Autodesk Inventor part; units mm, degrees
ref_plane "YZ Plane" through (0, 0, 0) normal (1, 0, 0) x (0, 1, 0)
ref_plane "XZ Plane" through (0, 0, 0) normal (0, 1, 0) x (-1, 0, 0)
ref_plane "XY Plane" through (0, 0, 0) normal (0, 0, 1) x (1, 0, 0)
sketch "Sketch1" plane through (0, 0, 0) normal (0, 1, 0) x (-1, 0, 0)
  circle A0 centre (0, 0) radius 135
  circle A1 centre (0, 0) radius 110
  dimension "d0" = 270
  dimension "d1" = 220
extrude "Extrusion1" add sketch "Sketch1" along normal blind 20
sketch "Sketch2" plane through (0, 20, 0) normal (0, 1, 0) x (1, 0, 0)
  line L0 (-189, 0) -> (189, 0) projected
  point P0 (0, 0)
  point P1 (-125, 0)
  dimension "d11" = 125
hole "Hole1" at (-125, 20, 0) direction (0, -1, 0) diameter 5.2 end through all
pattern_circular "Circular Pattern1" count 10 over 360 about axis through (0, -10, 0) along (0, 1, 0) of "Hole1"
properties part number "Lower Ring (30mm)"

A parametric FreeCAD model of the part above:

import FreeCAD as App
import Part
import Sketcher

V = App.Vector
Q = App.Units.Quantity

doc = App.newDocument("Part")
params = doc.addObject("Spreadsheet::Sheet", "Params")
for row, (alias, value) in enumerate([
    ("sketch1_diameter", "270 mm"),
    ("sketch1_diameter2", "220 mm"),
    ("pad1_length", "20 mm"),
    ("sketch2_diameter", "5.2 mm"),
    ("hole_diameter", "5.2 mm"),
], start=1):
    params.set(f"A{row}", alias)
    params.set(f"B{row}", "=" + value)
    params.setAlias(f"B{row}", alias)

body = doc.addObject("PartDesign::Body", "Body")

# Sketch on XZ plane
sketch1 = doc.addObject("Sketcher::SketchObject", "Sketch")
body.addObject(sketch1)
sketch1.AttachmentSupport = (doc.XZ_Plane, [""])
sketch1.MapMode = "FlatFace"
sketch1.addGeometry([
    Part.Circle(V(0, 0, 0), V(0, 0, 1), 135),
    Part.Circle(V(0, 0, 0), V(0, 0, 1), 110),
], False)
sketch1.addConstraint([
    Sketcher.Constraint("Coincident", 0, 3, -1, 1),
    Sketcher.Constraint("Coincident", 1, 3, -1, 1),
    Sketcher.Constraint("Diameter", 0, Q("270 mm")),
    Sketcher.Constraint("Diameter", 1, Q("220 mm")),
])
sketch1.setExpression("Constraints[2]", "Params.sketch1_diameter")
sketch1.setExpression("Constraints[3]", "Params.sketch1_diameter2")
pad1 = doc.addObject("PartDesign::Pad", "Pad")
body.addObject(pad1)
pad1.Profile = sketch1
pad1.setExpression("Length", "Params.pad1_length")
pad1.Reversed = True

# Sketch on XZ plane
sketch2 = doc.addObject("Sketcher::SketchObject", "Sketch001")
body.addObject(sketch2)
sketch2.AttachmentSupport = (doc.XZ_Plane, [""])
sketch2.MapMode = "FlatFace"
sketch2.AttachmentOffset = App.Placement(V(0, 0, -20), App.Rotation())
sketch2.addGeometry(Part.Circle(V(-125, 0, 0), V(0, 0, 1), 2.6), False)
sketch2.addConstraint([
    Sketcher.Constraint("PointOnObject", 0, 3, -1),
    Sketcher.Constraint("Diameter", 0, Q("5.2 mm")),
    Sketcher.Constraint("DistanceX", 0, 3, -1, 1, Q("125 mm")),
])
sketch2.setExpression("Constraints[1]", "Params.sketch2_diameter")
doc.recompute()
hole = doc.addObject("PartDesign::Hole", "Hole")
body.addObject(hole)
hole.Profile = sketch2
hole.ThreadType = "None"
hole.setExpression("Diameter", "Params.hole_diameter")
hole.DepthType = "ThroughAll"
hole.Reversed = True
doc.recompute()

polarpattern = doc.addObject("PartDesign::PolarPattern", "PolarPattern")
body.addObject(polarpattern)
polarpattern.Originals = [hole]
polarpattern.Axis = (doc.Y_Axis, [""])
polarpattern.Angle = 360
polarpattern.Occurrences = 10
body.Tip = polarpattern

doc.recompute()
